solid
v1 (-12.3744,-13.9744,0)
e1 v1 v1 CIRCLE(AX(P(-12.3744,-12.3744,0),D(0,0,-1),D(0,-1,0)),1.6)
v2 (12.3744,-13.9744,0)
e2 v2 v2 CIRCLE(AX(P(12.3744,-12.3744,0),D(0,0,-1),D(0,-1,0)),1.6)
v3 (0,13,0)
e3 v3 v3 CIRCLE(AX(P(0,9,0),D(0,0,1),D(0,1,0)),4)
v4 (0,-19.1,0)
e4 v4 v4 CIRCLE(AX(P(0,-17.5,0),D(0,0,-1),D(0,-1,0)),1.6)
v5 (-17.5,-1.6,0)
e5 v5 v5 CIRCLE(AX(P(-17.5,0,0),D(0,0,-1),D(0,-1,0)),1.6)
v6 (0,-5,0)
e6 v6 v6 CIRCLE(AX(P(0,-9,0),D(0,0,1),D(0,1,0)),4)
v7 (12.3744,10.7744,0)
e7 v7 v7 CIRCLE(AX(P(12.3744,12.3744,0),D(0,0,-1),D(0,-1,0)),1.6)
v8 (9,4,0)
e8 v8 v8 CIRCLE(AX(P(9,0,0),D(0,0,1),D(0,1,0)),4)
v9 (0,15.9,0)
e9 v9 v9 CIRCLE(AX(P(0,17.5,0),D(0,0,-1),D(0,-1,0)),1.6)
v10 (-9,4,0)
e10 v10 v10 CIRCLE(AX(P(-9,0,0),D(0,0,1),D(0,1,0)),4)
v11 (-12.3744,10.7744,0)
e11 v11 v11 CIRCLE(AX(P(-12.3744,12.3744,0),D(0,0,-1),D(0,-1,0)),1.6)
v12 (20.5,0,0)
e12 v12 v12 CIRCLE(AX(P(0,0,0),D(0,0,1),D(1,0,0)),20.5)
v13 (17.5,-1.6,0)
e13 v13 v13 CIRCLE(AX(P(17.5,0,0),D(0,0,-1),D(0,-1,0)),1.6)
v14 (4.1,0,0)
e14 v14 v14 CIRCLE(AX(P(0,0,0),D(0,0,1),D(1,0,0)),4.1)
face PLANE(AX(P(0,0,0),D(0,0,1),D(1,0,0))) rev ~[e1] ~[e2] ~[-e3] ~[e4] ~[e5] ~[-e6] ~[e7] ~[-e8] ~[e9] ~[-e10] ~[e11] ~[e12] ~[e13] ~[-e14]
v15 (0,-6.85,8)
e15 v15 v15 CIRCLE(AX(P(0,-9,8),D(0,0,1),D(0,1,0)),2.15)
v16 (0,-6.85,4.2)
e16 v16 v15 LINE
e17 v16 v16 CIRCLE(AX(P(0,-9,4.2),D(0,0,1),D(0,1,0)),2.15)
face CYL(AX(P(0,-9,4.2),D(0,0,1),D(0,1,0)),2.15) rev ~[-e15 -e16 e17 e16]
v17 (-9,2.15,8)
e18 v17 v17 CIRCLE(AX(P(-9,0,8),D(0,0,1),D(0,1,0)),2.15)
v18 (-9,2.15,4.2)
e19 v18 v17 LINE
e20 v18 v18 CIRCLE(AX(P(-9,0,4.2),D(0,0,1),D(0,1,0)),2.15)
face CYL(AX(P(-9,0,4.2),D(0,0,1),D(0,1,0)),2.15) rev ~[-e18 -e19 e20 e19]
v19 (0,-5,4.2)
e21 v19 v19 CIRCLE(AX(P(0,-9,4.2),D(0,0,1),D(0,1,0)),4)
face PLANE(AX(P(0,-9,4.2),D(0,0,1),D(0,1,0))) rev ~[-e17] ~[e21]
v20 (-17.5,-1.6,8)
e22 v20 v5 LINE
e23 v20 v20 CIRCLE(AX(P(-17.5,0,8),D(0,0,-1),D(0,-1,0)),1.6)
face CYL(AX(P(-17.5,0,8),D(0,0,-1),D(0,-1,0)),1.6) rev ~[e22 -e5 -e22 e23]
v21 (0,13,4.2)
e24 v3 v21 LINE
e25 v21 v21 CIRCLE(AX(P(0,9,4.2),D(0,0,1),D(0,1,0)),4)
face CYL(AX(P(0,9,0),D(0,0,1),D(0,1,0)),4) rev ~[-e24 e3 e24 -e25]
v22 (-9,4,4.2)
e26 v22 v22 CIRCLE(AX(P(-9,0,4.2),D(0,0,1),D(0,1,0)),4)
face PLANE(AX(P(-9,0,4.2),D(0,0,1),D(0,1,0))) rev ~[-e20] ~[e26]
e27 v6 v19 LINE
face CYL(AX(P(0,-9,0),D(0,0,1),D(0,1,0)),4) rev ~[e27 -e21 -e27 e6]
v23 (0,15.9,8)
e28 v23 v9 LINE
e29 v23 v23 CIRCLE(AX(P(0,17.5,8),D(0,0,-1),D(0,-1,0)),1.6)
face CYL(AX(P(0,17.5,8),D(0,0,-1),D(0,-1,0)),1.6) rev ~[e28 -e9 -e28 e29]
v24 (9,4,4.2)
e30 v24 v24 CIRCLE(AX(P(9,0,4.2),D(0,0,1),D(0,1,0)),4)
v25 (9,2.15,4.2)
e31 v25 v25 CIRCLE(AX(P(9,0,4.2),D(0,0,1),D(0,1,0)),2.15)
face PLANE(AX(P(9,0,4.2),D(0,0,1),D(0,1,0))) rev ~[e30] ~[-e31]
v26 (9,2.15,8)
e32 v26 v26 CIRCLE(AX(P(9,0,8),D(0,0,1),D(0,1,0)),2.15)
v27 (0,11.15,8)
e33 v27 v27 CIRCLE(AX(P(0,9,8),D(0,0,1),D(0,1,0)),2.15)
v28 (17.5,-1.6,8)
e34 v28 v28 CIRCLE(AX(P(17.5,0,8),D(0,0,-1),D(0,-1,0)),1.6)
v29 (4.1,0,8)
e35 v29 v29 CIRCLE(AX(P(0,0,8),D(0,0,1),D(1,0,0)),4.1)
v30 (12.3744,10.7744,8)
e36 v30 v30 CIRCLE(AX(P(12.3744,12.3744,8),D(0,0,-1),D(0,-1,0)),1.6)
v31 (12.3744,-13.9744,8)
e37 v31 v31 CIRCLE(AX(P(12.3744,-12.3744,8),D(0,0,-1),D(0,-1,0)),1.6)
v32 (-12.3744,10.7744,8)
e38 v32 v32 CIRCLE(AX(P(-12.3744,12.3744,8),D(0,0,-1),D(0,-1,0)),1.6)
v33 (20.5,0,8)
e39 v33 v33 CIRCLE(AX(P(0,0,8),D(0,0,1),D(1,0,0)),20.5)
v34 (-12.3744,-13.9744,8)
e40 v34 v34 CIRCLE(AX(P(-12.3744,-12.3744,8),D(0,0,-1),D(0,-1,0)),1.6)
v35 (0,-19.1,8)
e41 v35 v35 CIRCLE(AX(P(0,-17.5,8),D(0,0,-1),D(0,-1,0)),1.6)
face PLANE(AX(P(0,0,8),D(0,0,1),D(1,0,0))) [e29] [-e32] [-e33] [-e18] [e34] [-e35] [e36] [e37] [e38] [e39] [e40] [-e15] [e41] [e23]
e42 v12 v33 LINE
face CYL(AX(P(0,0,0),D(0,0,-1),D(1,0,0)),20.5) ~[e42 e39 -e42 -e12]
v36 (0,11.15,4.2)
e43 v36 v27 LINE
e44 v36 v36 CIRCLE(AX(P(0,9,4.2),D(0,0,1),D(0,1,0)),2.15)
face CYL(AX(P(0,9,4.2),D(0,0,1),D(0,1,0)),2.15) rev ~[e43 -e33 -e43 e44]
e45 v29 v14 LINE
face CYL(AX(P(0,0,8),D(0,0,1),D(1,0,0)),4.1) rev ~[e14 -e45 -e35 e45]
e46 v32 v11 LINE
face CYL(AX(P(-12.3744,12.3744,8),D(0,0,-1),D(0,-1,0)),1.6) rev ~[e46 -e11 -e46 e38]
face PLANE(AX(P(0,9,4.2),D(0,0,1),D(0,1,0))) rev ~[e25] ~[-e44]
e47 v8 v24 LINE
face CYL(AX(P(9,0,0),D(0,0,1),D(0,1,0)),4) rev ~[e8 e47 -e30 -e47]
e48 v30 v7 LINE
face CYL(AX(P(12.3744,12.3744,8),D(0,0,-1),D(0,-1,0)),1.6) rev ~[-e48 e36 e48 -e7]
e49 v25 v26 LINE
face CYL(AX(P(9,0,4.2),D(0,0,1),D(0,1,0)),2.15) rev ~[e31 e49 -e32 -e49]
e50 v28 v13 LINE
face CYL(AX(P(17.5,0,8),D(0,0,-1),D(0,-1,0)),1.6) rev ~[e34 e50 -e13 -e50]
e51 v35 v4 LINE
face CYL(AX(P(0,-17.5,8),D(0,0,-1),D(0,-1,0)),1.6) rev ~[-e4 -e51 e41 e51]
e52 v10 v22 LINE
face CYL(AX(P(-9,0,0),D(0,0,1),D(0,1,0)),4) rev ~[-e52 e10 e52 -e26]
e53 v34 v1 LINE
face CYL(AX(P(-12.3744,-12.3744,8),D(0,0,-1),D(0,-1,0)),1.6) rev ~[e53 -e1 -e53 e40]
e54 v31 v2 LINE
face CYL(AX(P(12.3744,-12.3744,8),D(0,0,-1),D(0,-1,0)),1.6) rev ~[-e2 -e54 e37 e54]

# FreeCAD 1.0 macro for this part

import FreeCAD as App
import Part
import Sketcher

V = App.Vector
Q = App.Units.Quantity

doc = App.newDocument("Part")
body = doc.addObject("PartDesign::Body", "Body")

# Sketch on XY plane
sketch1 = body.newObject("Sketcher::SketchObject", "Sketch")
sketch1.AttachmentSupport = (doc.getObject("XY_Plane"), [""])
sketch1.MapMode = "FlatFace"
sketch1.addGeometry(Part.Circle(V(0, 0, 0), V(0, 0, 1), 20), False)
sketch1.addConstraint([
    Sketcher.Constraint("Coincident", 0, 3, -1, 1),
    Sketcher.Constraint("Diameter", 0, Q("41 mm")),
])
pad1 = body.newObject("PartDesign::Pad", "Pad")
pad1.Profile = sketch1
pad1.Length = 8

# Sketch on XY plane
sketch2 = body.newObject("Sketcher::SketchObject", "Sketch001")
sketch2.AttachmentSupport = (doc.getObject("XY_Plane"), [""])
sketch2.MapMode = "FlatFace"
sketch2.AttachmentOffset = App.Placement(V(0, 0, 8), App.Rotation())
sketch2.addGeometry([
    Part.Circle(V(0, 17.5, 0), V(0, 0, 1), 1.6),  # 0
    Part.Circle(V(-12.4, 12.4, 0), V(0, 0, 1), 1.6),  # 1
    Part.Circle(V(-17.5, 0, 0), V(0, 0, 1), 1.6),  # 2
    Part.Circle(V(-12.4, -12.4, 0), V(0, 0, 1), 1.6),  # 3
    Part.Circle(V(0, -17.5, 0), V(0, 0, 1), 1.6),  # 4
    Part.Circle(V(12.4, -12.4, 0), V(0, 0, 1), 1.6),  # 5
    Part.Circle(V(17.5, 0, 0), V(0, 0, 1), 1.6),  # 6
    Part.Circle(V(12.4, 12.4, 0), V(0, 0, 1), 1.6),  # 7
], False)
sketch2.addConstraint([
    Sketcher.Constraint("Equal", 0, 1),
    Sketcher.Constraint("Equal", 1, 2),
    Sketcher.Constraint("Equal", 2, 3),
    Sketcher.Constraint("Equal", 3, 4),
    Sketcher.Constraint("Equal", 4, 5),
    Sketcher.Constraint("Equal", 5, 6),
    Sketcher.Constraint("Equal", 6, 7),
    Sketcher.Constraint("Symmetric", 0, 3, 4, 3, -1, 1),
    Sketcher.Constraint("Symmetric", 1, 3, 5, 3, -1, 1),
    Sketcher.Constraint("Symmetric", 2, 3, 6, 3, -1, 1),
    Sketcher.Constraint("Symmetric", 3, 3, 7, 3, -1, 1),
    Sketcher.Constraint("Symmetric", 3, 3, 5, 3, -2),
    Sketcher.Constraint("PointOnObject", 0, 3, -2),
    Sketcher.Constraint("PointOnObject", 2, 3, -1),
    Sketcher.Constraint("Diameter", 0, Q("3.2 mm")),
    Sketcher.Constraint("DistanceY", 4, 3, 0, 3, Q("35 mm")),
    Sketcher.Constraint("DistanceX", 2, 3, -1, 1, Q("17.5 mm")),
    Sketcher.Constraint("DistanceX", 1, 3, -1, 1, Q("12.3744 mm")),
    Sketcher.Constraint("DistanceY", -1, 1, 1, 3, Q("12.3744 mm")),
])
doc.recompute()
hole = body.newObject("PartDesign::Hole", "Hole")
hole.Profile = sketch2
hole.ThreadType = "None"
hole.Diameter = 3.2
hole.DepthType = "ThroughAll"

# Sketch on XY plane
sketch3 = body.newObject("Sketcher::SketchObject", "Sketch002")
sketch3.AttachmentSupport = (doc.getObject("XY_Plane"), [""])
sketch3.MapMode = "FlatFace"
sketch3.addGeometry([
    Part.Circle(V(0, 9, 0), V(0, 0, 1), 2.1),
    Part.Circle(V(9, 0, 0), V(0, 0, 1), 2.1),
    Part.Circle(V(0, -9, 0), V(0, 0, 1), 2.1),
    Part.Circle(V(-9, 0, 0), V(0, 0, 1), 2.1),
], False)
sketch3.addConstraint([
    Sketcher.Constraint("Equal", 0, 1),
    Sketcher.Constraint("Equal", 1, 2),
    Sketcher.Constraint("Equal", 2, 3),
    Sketcher.Constraint("Symmetric", 0, 3, 2, 3, -1, 1),
    Sketcher.Constraint("Symmetric", 1, 3, 3, 3, -1, 1),
    Sketcher.Constraint("PointOnObject", 0, 3, -2),
    Sketcher.Constraint("PointOnObject", 1, 3, -1),
    Sketcher.Constraint("Diameter", 0, Q("4.3 mm")),
    Sketcher.Constraint("DistanceY", -1, 1, 0, 3, Q("9 mm")),
    Sketcher.Constraint("DistanceX", -1, 1, 1, 3, Q("9 mm")),
])
doc.recompute()
hole2 = body.newObject("PartDesign::Hole", "Hole001")
hole2.Profile = sketch3
hole2.ThreadType = "None"
hole2.Diameter = 4.3
hole2.DepthType = "ThroughAll"
hole2.HoleCutType = "Counterbore"
hole2.HoleCutDiameter = 8
hole2.HoleCutDepth = 4.2
hole2.Reversed = True

# Sketch on XY plane
sketch4 = body.newObject("Sketcher::SketchObject", "Sketch003")
sketch4.AttachmentSupport = (doc.getObject("XY_Plane"), [""])
sketch4.MapMode = "FlatFace"
sketch4.AttachmentOffset = App.Placement(V(0, 0, 8), App.Rotation())
sketch4.addGeometry(Part.Circle(V(0, 0, 0), V(0, 0, 1), 4.1), False)
sketch4.addConstraint([
    Sketcher.Constraint("Coincident", 0, 3, -1, 1),
    Sketcher.Constraint("Diameter", 0, Q("8.2 mm")),
])
pocket1 = body.newObject("PartDesign::Pocket", "Pocket")
pocket1.Profile = sketch4
pocket1.Type = "ThroughAll"

doc.recompute()
